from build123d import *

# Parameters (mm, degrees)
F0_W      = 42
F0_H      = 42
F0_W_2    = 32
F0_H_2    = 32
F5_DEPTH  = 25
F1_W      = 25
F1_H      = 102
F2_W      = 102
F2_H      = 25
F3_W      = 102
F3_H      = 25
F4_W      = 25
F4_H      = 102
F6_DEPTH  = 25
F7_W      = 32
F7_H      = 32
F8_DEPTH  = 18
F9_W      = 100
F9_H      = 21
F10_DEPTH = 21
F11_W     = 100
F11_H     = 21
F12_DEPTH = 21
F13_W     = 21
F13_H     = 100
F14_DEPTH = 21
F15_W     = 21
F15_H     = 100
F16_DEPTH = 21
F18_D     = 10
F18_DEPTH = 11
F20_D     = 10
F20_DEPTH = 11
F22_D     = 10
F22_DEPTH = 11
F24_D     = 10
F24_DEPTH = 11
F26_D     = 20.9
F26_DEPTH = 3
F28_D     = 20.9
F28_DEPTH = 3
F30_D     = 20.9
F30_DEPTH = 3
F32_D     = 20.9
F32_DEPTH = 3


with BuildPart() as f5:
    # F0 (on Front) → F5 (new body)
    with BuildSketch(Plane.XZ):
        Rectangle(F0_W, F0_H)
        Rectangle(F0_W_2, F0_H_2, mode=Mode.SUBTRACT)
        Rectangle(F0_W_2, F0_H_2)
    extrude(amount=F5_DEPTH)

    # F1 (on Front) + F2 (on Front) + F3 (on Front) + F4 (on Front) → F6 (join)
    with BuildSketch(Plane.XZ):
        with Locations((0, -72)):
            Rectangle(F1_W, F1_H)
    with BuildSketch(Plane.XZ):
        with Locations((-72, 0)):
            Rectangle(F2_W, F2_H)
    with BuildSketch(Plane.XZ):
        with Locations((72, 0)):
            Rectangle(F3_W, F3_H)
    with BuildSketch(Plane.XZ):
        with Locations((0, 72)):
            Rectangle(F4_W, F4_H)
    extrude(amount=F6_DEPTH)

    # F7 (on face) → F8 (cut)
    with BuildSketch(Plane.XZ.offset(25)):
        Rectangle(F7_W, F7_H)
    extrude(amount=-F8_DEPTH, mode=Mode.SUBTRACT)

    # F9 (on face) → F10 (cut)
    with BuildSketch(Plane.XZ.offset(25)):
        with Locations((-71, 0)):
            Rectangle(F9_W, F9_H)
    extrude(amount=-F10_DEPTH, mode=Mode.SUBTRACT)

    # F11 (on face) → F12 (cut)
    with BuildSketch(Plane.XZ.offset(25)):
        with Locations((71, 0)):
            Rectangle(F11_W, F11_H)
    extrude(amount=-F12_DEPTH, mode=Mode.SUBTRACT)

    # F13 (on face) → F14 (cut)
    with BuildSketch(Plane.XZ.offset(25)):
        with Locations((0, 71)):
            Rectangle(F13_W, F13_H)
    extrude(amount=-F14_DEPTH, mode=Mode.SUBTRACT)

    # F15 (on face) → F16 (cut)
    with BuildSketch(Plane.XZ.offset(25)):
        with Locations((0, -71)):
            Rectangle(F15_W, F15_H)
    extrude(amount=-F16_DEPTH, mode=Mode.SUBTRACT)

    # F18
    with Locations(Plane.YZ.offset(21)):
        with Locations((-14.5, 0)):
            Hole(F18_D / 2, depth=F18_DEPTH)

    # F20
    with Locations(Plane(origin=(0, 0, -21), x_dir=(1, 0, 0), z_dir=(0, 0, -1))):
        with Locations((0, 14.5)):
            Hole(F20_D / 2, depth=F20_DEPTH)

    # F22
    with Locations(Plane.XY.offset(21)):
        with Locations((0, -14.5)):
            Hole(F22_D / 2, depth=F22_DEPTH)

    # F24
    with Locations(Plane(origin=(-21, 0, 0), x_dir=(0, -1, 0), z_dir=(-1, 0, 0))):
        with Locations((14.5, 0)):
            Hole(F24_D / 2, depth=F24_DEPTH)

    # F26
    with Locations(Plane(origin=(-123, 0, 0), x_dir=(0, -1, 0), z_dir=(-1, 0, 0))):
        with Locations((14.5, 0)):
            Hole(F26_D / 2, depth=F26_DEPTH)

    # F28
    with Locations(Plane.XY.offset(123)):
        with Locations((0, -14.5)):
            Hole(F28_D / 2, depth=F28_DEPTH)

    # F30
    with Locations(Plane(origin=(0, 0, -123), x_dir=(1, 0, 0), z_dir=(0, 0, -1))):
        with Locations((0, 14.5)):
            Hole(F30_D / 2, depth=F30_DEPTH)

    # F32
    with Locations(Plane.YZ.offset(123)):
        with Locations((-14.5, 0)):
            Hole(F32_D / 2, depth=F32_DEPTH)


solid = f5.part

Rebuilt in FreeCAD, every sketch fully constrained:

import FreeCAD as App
import Part
import Sketcher

V = App.Vector


def add_polygon(sketch, points):
    """Adds a closed chain of lines whose ends are joined by coincident constraints."""
    first, n = sketch.GeometryCount, len(points)
    for a, b in zip(points, points[1:] + points[:1]):
        sketch.addGeometry(Part.LineSegment(App.Vector(*a, 0), App.Vector(*b, 0)), False)
    for i in range(n):
        sketch.addConstraint(Sketcher.Constraint("Coincident", first + i, 2, first + (i + 1) % n, 1))

doc = App.newDocument("Part")
body = doc.addObject("PartDesign::Body", "Body")

# Sketch on XZ plane
sketch1 = doc.addObject("Sketcher::SketchObject", "Sketch")
body.addObject(sketch1)
sketch1.AttachmentSupport = (doc.XZ_Plane, [""])
sketch1.MapMode = "FlatFace"
add_polygon(sketch1, [(-21, 21), (-21, -21), (21, -21), (21, 21)])  # lines 0-3
sketch1.addConstraint([
    Sketcher.Constraint("Vertical", 0),
    Sketcher.Constraint("Horizontal", 1),
    Sketcher.Constraint("Vertical", 2),
    Sketcher.Constraint("Horizontal", 3),
    Sketcher.Constraint("Symmetric", 0, 2, 2, 2, -1, 1),
    Sketcher.Constraint("Equal", 3, 0),
    Sketcher.Constraint("DistanceX", 1, 1, 1, 2, 42.0),
])
pad1 = doc.addObject("PartDesign::Pad", "Pad")
body.addObject(pad1)
pad1.Profile = sketch1
pad1.Length = 25

# Sketch on XZ plane
sketch2 = doc.addObject("Sketcher::SketchObject", "Sketch001")
body.addObject(sketch2)
sketch2.AttachmentSupport = (doc.XZ_Plane, [""])
sketch2.MapMode = "FlatFace"
add_polygon(sketch2, [(-12.5, -21), (-12.5, -123), (12.5, -123), (12.5, -21)])  # lines 0-3
add_polygon(sketch2, [(-123, 12.5), (-123, -12.5), (-21, -12.5), (-21, 12.5)])  # lines 4-7
add_polygon(sketch2, [(21, 12.5), (21, -12.5), (123, -12.5), (123, 12.5)])  # lines 8-11
add_polygon(sketch2, [(-12.5, 123), (-12.5, 21), (12.5, 21), (12.5, 123)])  # lines 12-15
sketch2.addConstraint([
    Sketcher.Constraint("Vertical", 0),
    Sketcher.Constraint("Horizontal", 1),
    Sketcher.Constraint("Vertical", 2),
    Sketcher.Constraint("Horizontal", 3),
    Sketcher.Constraint("Vertical", 4),
    Sketcher.Constraint("Horizontal", 5),
    Sketcher.Constraint("Vertical", 6),
    Sketcher.Constraint("Horizontal", 7),
    Sketcher.Constraint("Vertical", 8),
    Sketcher.Constraint("Horizontal", 9),
    Sketcher.Constraint("Vertical", 10),
    Sketcher.Constraint("Horizontal", 11),
    Sketcher.Constraint("Vertical", 12),
    Sketcher.Constraint("Horizontal", 13),
    Sketcher.Constraint("Vertical", 14),
    Sketcher.Constraint("Horizontal", 15),
    Sketcher.Constraint("Symmetric", 6, 2, 8, 2, -1, 1),
    Sketcher.Constraint("Symmetric", 4, 2, 10, 2, -1, 1),
    Sketcher.Constraint("Symmetric", 2, 2, 12, 2, -1, 1),
    Sketcher.Constraint("Symmetric", 0, 2, 14, 2, -1, 1),
    Sketcher.Constraint("Horizontal", 5, 2, 8, 2),
    Sketcher.Constraint("Vertical", 3, 2, 12, 2),
    Sketcher.Constraint("Equal", 11, 0),
    Sketcher.Constraint("Equal", 15, 4),
    Sketcher.Constraint("DistanceX", 1, 1, 1, 2, 25.0),
    Sketcher.Constraint("DistanceX", 5, 1, 5, 2, 102.0),
    Sketcher.Constraint("DistanceY", 0, 2, -1, 1, 123.0),
    Sketcher.Constraint("DistanceX", 4, 2, -1, 1, 123.0),
])
pad2 = doc.addObject("PartDesign::Pad", "Pad001")
body.addObject(pad2)
pad2.Profile = sketch2
pad2.Length = 25

# Sketch on XZ plane
sketch3 = doc.addObject("Sketcher::SketchObject", "Sketch002")
body.addObject(sketch3)
sketch3.AttachmentSupport = (doc.XZ_Plane, [""])
sketch3.MapMode = "FlatFace"
sketch3.AttachmentOffset = App.Placement(V(0, 0, 25), App.Rotation())
add_polygon(sketch3, [(-16, 16), (-16, -16), (16, -16), (16, 16)])  # lines 0-3
sketch3.addConstraint([
    Sketcher.Constraint("Vertical", 0),
    Sketcher.Constraint("Horizontal", 1),
    Sketcher.Constraint("Vertical", 2),
    Sketcher.Constraint("Horizontal", 3),
    Sketcher.Constraint("Symmetric", 0, 2, 2, 2, -1, 1),
    Sketcher.Constraint("Equal", 3, 0),
    Sketcher.Constraint("DistanceX", 1, 1, 1, 2, 32.0),
])
pocket1 = doc.addObject("PartDesign::Pocket", "Pocket")
body.addObject(pocket1)
pocket1.Profile = sketch3
pocket1.Length = 18

# Sketch on XZ plane
sketch4 = doc.addObject("Sketcher::SketchObject", "Sketch003")
body.addObject(sketch4)
sketch4.AttachmentSupport = (doc.XZ_Plane, [""])
sketch4.MapMode = "FlatFace"
sketch4.AttachmentOffset = App.Placement(V(0, 0, 25), App.Rotation())
add_polygon(sketch4, [(-121, 10.5), (-121, -10.5), (-21, -10.5), (-21, 10.5)])  # lines 0-3
sketch4.addConstraint([
    Sketcher.Constraint("Vertical", 0),
    Sketcher.Constraint("Horizontal", 1),
    Sketcher.Constraint("Vertical", 2),
    Sketcher.Constraint("Horizontal", 3),
    Sketcher.Constraint("DistanceX", 1, 1, 1, 2, 100.0),
    Sketcher.Constraint("DistanceY", 0, 2, 0, 1, 21.0),
    Sketcher.Constraint("DistanceX", 0, 2, -1, 1, 121.0),
    Sketcher.Constraint("DistanceY", 0, 2, -1, 1, 10.5),
])
pocket2 = doc.addObject("PartDesign::Pocket", "Pocket001")
body.addObject(pocket2)
pocket2.Profile = sketch4
pocket2.Length = 21

# Sketch on XZ plane
sketch5 = doc.addObject("Sketcher::SketchObject", "Sketch004")
body.addObject(sketch5)
sketch5.AttachmentSupport = (doc.XZ_Plane, [""])
sketch5.MapMode = "FlatFace"
sketch5.AttachmentOffset = App.Placement(V(0, 0, 25), App.Rotation())
add_polygon(sketch5, [(21, 10.5), (21, -10.5), (121, -10.5), (121, 10.5)])  # lines 0-3
sketch5.addConstraint([
    Sketcher.Constraint("Vertical", 0),
    Sketcher.Constraint("Horizontal", 1),
    Sketcher.Constraint("Vertical", 2),
    Sketcher.Constraint("Horizontal", 3),
    Sketcher.Constraint("DistanceX", 1, 1, 1, 2, 100.0),
    Sketcher.Constraint("DistanceY", 0, 2, 0, 1, 21.0),
    Sketcher.Constraint("DistanceX", -1, 1, 0, 2, 21.0),
    Sketcher.Constraint("DistanceY", 0, 2, -1, 1, 10.5),
])
pocket3 = doc.addObject("PartDesign::Pocket", "Pocket002")
body.addObject(pocket3)
pocket3.Profile = sketch5
pocket3.Length = 21

# Sketch on XZ plane
sketch6 = doc.addObject("Sketcher::SketchObject", "Sketch005")
body.addObject(sketch6)
sketch6.AttachmentSupport = (doc.XZ_Plane, [""])
sketch6.MapMode = "FlatFace"
sketch6.AttachmentOffset = App.Placement(V(0, 0, 25), App.Rotation())
add_polygon(sketch6, [(-10.5, 121), (-10.5, 21), (10.5, 21), (10.5, 121)])  # lines 0-3
sketch6.addConstraint([
    Sketcher.Constraint("Vertical", 0),
    Sketcher.Constraint("Horizontal", 1),
    Sketcher.Constraint("Vertical", 2),
    Sketcher.Constraint("Horizontal", 3),
    Sketcher.Constraint("DistanceX", 1, 1, 1, 2, 21.0),
    Sketcher.Constraint("DistanceY", 0, 2, 0, 1, 100.0),
    Sketcher.Constraint("DistanceY", -1, 1, 0, 2, 21.0),
    Sketcher.Constraint("DistanceX", 0, 2, -1, 1, 10.5),
])
pocket4 = doc.addObject("PartDesign::Pocket", "Pocket003")
body.addObject(pocket4)
pocket4.Profile = sketch6
pocket4.Length = 21

# Sketch on XZ plane
sketch7 = doc.addObject("Sketcher::SketchObject", "Sketch006")
body.addObject(sketch7)
sketch7.AttachmentSupport = (doc.XZ_Plane, [""])
sketch7.MapMode = "FlatFace"
sketch7.AttachmentOffset = App.Placement(V(0, 0, 25), App.Rotation())
add_polygon(sketch7, [(-10.5, -21), (-10.5, -121), (10.5, -121), (10.5, -21)])  # lines 0-3
sketch7.addConstraint([
    Sketcher.Constraint("Vertical", 0),
    Sketcher.Constraint("Horizontal", 1),
    Sketcher.Constraint("Vertical", 2),
    Sketcher.Constraint("Horizontal", 3),
    Sketcher.Constraint("DistanceX", 1, 1, 1, 2, 21.0),
    Sketcher.Constraint("DistanceY", 0, 2, 0, 1, 100.0),
    Sketcher.Constraint("DistanceY", 0, 2, -1, 1, 121.0),
    Sketcher.Constraint("DistanceX", 0, 2, -1, 1, 10.5),
])
pocket5 = doc.addObject("PartDesign::Pocket", "Pocket004")
body.addObject(pocket5)
pocket5.Profile = sketch7
pocket5.Length = 21

# Sketch on YZ plane
sketch8 = doc.addObject("Sketcher::SketchObject", "Sketch007")
body.addObject(sketch8)
sketch8.AttachmentSupport = (doc.YZ_Plane, [""])
sketch8.MapMode = "FlatFace"
sketch8.AttachmentOffset = App.Placement(V(0, 0, 21), App.Rotation())
sketch8.addGeometry(Part.Circle(V(-14.5, 0, 0), V(0, 0, 1), 5), False)
sketch8.addConstraint([
    Sketcher.Constraint("PointOnObject", 0, 3, -1),
    Sketcher.Constraint("Diameter", 0, 10.0),
    Sketcher.Constraint("DistanceX", 0, 3, -1, 1, 14.5),
])
doc.recompute()
hole = doc.addObject("PartDesign::Hole", "Hole")
body.addObject(hole)
hole.Profile = sketch8
hole.ThreadType = "None"
hole.Diameter = 10
hole.DepthType = "Dimension"
hole.Depth = 11
hole.DrillPoint = "Flat"

# Sketch on XY plane
sketch9 = doc.addObject("Sketcher::SketchObject", "Sketch008")
body.addObject(sketch9)
sketch9.AttachmentSupport = (doc.XY_Plane, [""])
sketch9.MapMode = "FlatFace"
sketch9.AttachmentOffset = App.Placement(V(0, 0, -21), App.Rotation())
sketch9.addGeometry(Part.Circle(V(0, -14.5, 0), V(0, 0, 1), 5), False)
sketch9.addConstraint([
    Sketcher.Constraint("PointOnObject", 0, 3, -2),
    Sketcher.Constraint("Diameter", 0, 10.0),
    Sketcher.Constraint("DistanceY", 0, 3, -1, 1, 14.5),
])
doc.recompute()
hole2 = doc.addObject("PartDesign::Hole", "Hole001")
body.addObject(hole2)
hole2.Profile = sketch9
hole2.ThreadType = "None"
hole2.Diameter = 10
hole2.DepthType = "Dimension"
hole2.Depth = 11
hole2.DrillPoint = "Flat"
hole2.Reversed = True

# Sketch on XY plane
sketch10 = doc.addObject("Sketcher::SketchObject", "Sketch009")
body.addObject(sketch10)
sketch10.AttachmentSupport = (doc.XY_Plane, [""])
sketch10.MapMode = "FlatFace"
sketch10.AttachmentOffset = App.Placement(V(0, 0, 21), App.Rotation())
sketch10.addGeometry(Part.Circle(V(0, -14.5, 0), V(0, 0, 1), 5), False)
sketch10.addConstraint([
    Sketcher.Constraint("PointOnObject", 0, 3, -2),
    Sketcher.Constraint("Diameter", 0, 10.0),
    Sketcher.Constraint("DistanceY", 0, 3, -1, 1, 14.5),
])
doc.recompute()
hole3 = doc.addObject("PartDesign::Hole", "Hole002")
body.addObject(hole3)
hole3.Profile = sketch10
hole3.ThreadType = "None"
hole3.Diameter = 10
hole3.DepthType = "Dimension"
hole3.Depth = 11
hole3.DrillPoint = "Flat"

# Sketch on YZ plane
sketch11 = doc.addObject("Sketcher::SketchObject", "Sketch010")
body.addObject(sketch11)
sketch11.AttachmentSupport = (doc.YZ_Plane, [""])
sketch11.MapMode = "FlatFace"
sketch11.AttachmentOffset = App.Placement(V(0, 0, -21), App.Rotation())
sketch11.addGeometry(Part.Circle(V(-14.5, 0, 0), V(0, 0, 1), 5), False)
sketch11.addConstraint([
    Sketcher.Constraint("PointOnObject", 0, 3, -1),
    Sketcher.Constraint("Diameter", 0, 10.0),
    Sketcher.Constraint("DistanceX", 0, 3, -1, 1, 14.5),
])
doc.recompute()
hole4 = doc.addObject("PartDesign::Hole", "Hole003")
body.addObject(hole4)
hole4.Profile = sketch11
hole4.ThreadType = "None"
hole4.Diameter = 10
hole4.DepthType = "Dimension"
hole4.Depth = 11
hole4.DrillPoint = "Flat"
hole4.Reversed = True

# Sketch on YZ plane
sketch12 = doc.addObject("Sketcher::SketchObject", "Sketch011")
body.addObject(sketch12)
sketch12.AttachmentSupport = (doc.YZ_Plane, [""])
sketch12.MapMode = "FlatFace"
sketch12.AttachmentOffset = App.Placement(V(0, 0, -123), App.Rotation())
sketch12.addGeometry(Part.Circle(V(-14.5, 0, 0), V(0, 0, 1), 10.45), False)
sketch12.addConstraint([
    Sketcher.Constraint("PointOnObject", 0, 3, -1),
    Sketcher.Constraint("Diameter", 0, 20.9),
    Sketcher.Constraint("DistanceX", 0, 3, -1, 1, 14.5),
])
doc.recompute()
hole5 = doc.addObject("PartDesign::Hole", "Hole004")
body.addObject(hole5)
hole5.Profile = sketch12
hole5.ThreadType = "None"
hole5.Diameter = 20.9
hole5.DepthType = "Dimension"
hole5.Depth = 3
hole5.DrillPoint = "Flat"
hole5.Reversed = True

# Sketch on XY plane
sketch13 = doc.addObject("Sketcher::SketchObject", "Sketch012")
body.addObject(sketch13)
sketch13.AttachmentSupport = (doc.XY_Plane, [""])
sketch13.MapMode = "FlatFace"
sketch13.AttachmentOffset = App.Placement(V(0, 0, 123), App.Rotation())
sketch13.addGeometry(Part.Circle(V(0, -14.5, 0), V(0, 0, 1), 10.45), False)
sketch13.addConstraint([
    Sketcher.Constraint("PointOnObject", 0, 3, -2),
    Sketcher.Constraint("Diameter", 0, 20.9),
    Sketcher.Constraint("DistanceY", 0, 3, -1, 1, 14.5),
])
doc.recompute()
hole6 = doc.addObject("PartDesign::Hole", "Hole005")
body.addObject(hole6)
hole6.Profile = sketch13
hole6.ThreadType = "None"
hole6.Diameter = 20.9
hole6.DepthType = "Dimension"
hole6.Depth = 3
hole6.DrillPoint = "Flat"

# Sketch on XY plane
sketch14 = doc.addObject("Sketcher::SketchObject", "Sketch013")
body.addObject(sketch14)
sketch14.AttachmentSupport = (doc.XY_Plane, [""])
sketch14.MapMode = "FlatFace"
sketch14.AttachmentOffset = App.Placement(V(0, 0, -123), App.Rotation())
sketch14.addGeometry(Part.Circle(V(0, -14.5, 0), V(0, 0, 1), 10.45), False)
sketch14.addConstraint([
    Sketcher.Constraint("PointOnObject", 0, 3, -2),
    Sketcher.Constraint("Diameter", 0, 20.9),
    Sketcher.Constraint("DistanceY", 0, 3, -1, 1, 14.5),
])
doc.recompute()
hole7 = doc.addObject("PartDesign::Hole", "Hole006")
body.addObject(hole7)
hole7.Profile = sketch14
hole7.ThreadType = "None"
hole7.Diameter = 20.9
hole7.DepthType = "Dimension"
hole7.Depth = 3
hole7.DrillPoint = "Flat"
hole7.Reversed = True

# Sketch on YZ plane
sketch15 = doc.addObject("Sketcher::SketchObject", "Sketch014")
body.addObject(sketch15)
sketch15.AttachmentSupport = (doc.YZ_Plane, [""])
sketch15.MapMode = "FlatFace"
sketch15.AttachmentOffset = App.Placement(V(0, 0, 123), App.Rotation())
sketch15.addGeometry(Part.Circle(V(-14.5, 0, 0), V(0, 0, 1), 10.45), False)
sketch15.addConstraint([
    Sketcher.Constraint("PointOnObject", 0, 3, -1),
    Sketcher.Constraint("Diameter", 0, 20.9),
    Sketcher.Constraint("DistanceX", 0, 3, -1, 1, 14.5),
])
doc.recompute()
hole8 = doc.addObject("PartDesign::Hole", "Hole007")
body.addObject(hole8)
hole8.Profile = sketch15
hole8.ThreadType = "None"
hole8.Diameter = 20.9
hole8.DepthType = "Dimension"
hole8.Depth = 3
hole8.DrillPoint = "Flat"

doc.recompute()
